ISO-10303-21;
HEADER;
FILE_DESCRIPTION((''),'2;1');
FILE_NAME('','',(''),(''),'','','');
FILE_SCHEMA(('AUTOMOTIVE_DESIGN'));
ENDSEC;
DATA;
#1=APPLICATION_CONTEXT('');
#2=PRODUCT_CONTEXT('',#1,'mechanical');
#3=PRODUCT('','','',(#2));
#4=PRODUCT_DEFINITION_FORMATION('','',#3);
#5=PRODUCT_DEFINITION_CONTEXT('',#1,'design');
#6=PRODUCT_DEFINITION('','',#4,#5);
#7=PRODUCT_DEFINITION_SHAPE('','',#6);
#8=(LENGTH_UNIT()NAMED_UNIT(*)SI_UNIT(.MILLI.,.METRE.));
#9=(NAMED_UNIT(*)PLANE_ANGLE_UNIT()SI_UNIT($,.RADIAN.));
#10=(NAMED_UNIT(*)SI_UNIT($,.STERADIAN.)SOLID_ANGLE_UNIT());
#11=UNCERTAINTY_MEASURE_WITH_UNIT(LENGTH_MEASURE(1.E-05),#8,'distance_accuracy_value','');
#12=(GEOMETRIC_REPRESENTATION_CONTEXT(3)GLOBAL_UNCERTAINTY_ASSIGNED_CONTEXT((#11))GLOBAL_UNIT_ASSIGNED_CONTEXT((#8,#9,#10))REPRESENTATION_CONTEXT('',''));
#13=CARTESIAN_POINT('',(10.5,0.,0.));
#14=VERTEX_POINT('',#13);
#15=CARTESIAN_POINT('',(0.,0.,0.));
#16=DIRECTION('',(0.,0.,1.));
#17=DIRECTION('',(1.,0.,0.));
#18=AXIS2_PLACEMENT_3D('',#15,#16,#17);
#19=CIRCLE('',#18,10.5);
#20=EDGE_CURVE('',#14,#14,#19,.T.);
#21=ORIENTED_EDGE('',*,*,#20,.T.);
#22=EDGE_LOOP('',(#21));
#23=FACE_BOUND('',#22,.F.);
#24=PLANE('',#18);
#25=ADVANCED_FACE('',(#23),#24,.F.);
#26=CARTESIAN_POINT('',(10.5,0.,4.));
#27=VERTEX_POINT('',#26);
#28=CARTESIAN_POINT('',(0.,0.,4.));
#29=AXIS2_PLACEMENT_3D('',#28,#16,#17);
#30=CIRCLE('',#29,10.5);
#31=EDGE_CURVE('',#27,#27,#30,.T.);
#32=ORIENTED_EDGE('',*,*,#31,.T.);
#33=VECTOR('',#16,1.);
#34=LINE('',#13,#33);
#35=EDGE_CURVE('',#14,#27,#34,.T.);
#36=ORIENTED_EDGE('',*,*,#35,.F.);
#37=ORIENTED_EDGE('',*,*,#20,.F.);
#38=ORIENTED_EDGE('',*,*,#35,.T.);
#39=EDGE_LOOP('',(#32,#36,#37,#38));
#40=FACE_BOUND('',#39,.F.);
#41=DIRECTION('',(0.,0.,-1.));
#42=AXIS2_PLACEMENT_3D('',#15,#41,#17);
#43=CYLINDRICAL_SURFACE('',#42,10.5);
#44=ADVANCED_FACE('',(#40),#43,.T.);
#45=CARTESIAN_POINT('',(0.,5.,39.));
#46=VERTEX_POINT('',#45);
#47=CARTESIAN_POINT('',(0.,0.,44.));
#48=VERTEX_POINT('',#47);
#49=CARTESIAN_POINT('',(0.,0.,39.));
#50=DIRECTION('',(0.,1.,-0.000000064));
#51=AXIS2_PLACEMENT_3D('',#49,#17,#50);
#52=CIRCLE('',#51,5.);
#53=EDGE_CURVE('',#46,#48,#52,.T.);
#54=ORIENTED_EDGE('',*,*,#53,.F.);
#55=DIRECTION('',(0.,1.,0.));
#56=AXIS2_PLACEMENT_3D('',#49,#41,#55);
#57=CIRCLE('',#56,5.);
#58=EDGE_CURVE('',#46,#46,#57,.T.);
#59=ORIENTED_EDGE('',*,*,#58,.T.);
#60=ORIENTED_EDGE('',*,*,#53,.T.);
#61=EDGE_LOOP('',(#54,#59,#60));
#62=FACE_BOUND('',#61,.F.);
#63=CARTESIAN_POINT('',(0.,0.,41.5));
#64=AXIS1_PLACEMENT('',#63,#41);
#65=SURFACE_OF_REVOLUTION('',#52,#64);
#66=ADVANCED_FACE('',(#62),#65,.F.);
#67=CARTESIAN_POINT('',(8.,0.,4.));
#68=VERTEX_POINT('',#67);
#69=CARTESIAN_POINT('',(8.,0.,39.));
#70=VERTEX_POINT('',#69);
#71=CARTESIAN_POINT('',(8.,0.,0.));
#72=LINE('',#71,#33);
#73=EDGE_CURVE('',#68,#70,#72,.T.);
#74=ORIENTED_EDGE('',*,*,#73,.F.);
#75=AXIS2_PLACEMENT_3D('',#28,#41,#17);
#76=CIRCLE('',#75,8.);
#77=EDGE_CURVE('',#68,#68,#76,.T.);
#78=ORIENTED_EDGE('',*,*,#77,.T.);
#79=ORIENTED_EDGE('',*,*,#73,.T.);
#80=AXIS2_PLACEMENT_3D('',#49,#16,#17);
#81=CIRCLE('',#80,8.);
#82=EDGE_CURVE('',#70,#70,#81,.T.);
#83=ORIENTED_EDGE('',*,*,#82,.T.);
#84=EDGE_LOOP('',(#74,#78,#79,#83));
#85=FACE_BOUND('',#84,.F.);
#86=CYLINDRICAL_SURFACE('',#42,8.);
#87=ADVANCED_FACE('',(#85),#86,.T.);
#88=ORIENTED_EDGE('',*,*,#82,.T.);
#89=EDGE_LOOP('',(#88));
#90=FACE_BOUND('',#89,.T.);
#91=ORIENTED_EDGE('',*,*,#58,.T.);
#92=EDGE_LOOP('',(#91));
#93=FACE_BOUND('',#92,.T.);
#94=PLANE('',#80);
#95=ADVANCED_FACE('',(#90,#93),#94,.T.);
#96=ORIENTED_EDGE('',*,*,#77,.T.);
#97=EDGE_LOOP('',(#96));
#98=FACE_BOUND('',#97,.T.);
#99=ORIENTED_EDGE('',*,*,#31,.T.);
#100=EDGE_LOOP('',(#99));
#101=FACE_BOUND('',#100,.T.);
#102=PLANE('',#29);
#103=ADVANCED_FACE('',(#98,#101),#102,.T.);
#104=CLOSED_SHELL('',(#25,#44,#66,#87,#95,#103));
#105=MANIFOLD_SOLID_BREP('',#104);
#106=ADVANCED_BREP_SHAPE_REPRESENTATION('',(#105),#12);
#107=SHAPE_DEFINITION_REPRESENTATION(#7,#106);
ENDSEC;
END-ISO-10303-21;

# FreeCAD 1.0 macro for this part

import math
import FreeCAD as App
import Part
import Sketcher
from FreeCAD import Vector

doc = App.newDocument("Part")
body = doc.addObject("PartDesign::Body", "Body")

sketch1 = body.newObject("Sketcher::SketchObject", "Sketch")
sketch1.AttachmentSupport = (doc.getObject("XY_Plane"), [""])
sketch1.MapMode = "FlatFace"
sketch1.addGeometry(Part.Circle(Vector(0, 0, 0), Vector(0, 0, 1), 10.5), False)
sketch1.addConstraint([
    Sketcher.Constraint("Coincident", 0, 3, -1, 1),
    Sketcher.Constraint("Diameter", 0, 21.0),
])
pad1 = body.newObject("PartDesign::Pad", "Pad")
pad1.Profile = sketch1
pad1.Length = 4

sketch2 = body.newObject("Sketcher::SketchObject", "Sketch001")
sketch2.AttachmentSupport = (doc.getObject("XY_Plane"), [""])
sketch2.MapMode = "FlatFace"
sketch2.addGeometry(Part.Circle(Vector(0, 0, 0), Vector(0, 0, 1), 8), False)
sketch2.addConstraint([
    Sketcher.Constraint("Coincident", 0, 3, -1, 1),
    Sketcher.Constraint("Diameter", 0, 16.0),
])
pad2 = body.newObject("PartDesign::Pad", "Pad001")
pad2.Profile = sketch2
pad2.Length = 39

sketch3 = body.newObject("Sketcher::SketchObject", "Sketch002")
sketch3.AttachmentSupport = (doc.getObject("YZ_Plane"), [""])
sketch3.MapMode = "FlatFace"
sketch3.addGeometry([
    Part.ArcOfCircle(Part.Circle(Vector(0, 39, 0), Vector(0, 0, 1), 5), math.radians(-0.000004), math.radians(90.000004)),
    Part.LineSegment(Vector(0, 44, 0), Vector(0, 39, 0)),
    Part.LineSegment(Vector(0, 39, 0), Vector(5, 39, 0)),
], False)
sketch3.addConstraint([
    Sketcher.Constraint("Coincident", 0, 2, 1, 1),
    Sketcher.Constraint("Coincident", 1, 2, 2, 1),
    Sketcher.Constraint("Coincident", 2, 2, 0, 1),
    Sketcher.Constraint("Vertical", 1),
    Sketcher.Constraint("Horizontal", 2),
    Sketcher.Constraint("Coincident", 1, 2, 0, 3),
    Sketcher.Constraint("PointOnObject", 0, 3, -2),
    Sketcher.Constraint("Radius", 0, 5.0),
    Sketcher.Constraint("DistanceY", -1, 1, 0, 3, 39.0),
])
revolution = body.newObject("PartDesign::Revolution", "Revolution")
revolution.Profile = sketch3
revolution.ReferenceAxis = (sketch3, ["V_Axis"])
revolution.Angle = 360

doc.recompute()
